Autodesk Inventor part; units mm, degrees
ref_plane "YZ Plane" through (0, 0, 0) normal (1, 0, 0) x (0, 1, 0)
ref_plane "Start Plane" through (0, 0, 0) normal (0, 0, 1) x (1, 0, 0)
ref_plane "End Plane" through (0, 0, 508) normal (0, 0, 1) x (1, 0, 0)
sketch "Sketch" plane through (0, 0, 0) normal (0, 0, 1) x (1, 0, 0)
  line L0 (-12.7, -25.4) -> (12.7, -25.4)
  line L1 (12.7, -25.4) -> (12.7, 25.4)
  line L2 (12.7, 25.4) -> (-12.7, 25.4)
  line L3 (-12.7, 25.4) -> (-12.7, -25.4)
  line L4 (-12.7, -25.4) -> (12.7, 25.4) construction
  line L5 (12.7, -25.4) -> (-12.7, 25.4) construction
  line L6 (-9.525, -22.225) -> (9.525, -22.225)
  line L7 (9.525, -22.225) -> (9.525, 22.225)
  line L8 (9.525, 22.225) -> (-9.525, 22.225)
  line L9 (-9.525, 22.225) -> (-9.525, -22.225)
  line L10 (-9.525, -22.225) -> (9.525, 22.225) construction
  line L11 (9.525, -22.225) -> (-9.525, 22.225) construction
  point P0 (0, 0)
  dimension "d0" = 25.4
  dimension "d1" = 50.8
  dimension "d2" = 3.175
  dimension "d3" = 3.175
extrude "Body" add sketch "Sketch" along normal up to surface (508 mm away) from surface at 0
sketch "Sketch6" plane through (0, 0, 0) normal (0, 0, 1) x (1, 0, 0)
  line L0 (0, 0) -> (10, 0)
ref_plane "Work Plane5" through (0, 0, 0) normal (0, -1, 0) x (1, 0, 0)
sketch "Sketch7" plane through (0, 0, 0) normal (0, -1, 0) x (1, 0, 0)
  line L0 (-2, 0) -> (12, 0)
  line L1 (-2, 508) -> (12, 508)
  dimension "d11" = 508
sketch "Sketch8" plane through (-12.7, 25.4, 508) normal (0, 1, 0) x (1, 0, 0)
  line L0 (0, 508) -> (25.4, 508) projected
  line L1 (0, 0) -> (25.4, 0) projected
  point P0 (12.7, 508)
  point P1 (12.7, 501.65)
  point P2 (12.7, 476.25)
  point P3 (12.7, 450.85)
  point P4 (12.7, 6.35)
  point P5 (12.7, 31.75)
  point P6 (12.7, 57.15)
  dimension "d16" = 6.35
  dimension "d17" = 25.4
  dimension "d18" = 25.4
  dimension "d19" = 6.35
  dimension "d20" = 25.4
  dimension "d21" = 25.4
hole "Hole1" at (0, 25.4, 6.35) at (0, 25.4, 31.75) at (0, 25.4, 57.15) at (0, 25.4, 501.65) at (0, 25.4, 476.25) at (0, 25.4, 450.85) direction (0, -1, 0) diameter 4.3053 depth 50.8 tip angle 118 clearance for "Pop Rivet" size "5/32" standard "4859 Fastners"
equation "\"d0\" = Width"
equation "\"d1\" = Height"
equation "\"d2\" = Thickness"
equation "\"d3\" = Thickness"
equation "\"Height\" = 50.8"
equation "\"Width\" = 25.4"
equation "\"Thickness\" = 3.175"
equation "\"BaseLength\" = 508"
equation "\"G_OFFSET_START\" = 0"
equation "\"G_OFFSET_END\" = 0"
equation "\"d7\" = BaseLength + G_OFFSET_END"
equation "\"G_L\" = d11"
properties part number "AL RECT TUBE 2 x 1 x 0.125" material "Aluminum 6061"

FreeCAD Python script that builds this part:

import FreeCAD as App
import Part
import Sketcher

V = App.Vector
Q = App.Units.Quantity


def add_polygon(sketch, points):
    """Adds a closed chain of lines whose ends are joined by coincident constraints."""
    first, n = sketch.GeometryCount, len(points)
    for a, b in zip(points, points[1:] + points[:1]):
        sketch.addGeometry(Part.LineSegment(App.Vector(*a, 0), App.Vector(*b, 0)), False)
    for i in range(n):
        sketch.addConstraint(Sketcher.Constraint("Coincident", first + i, 2, first + (i + 1) % n, 1))

doc = App.newDocument("Part")
body = doc.addObject("PartDesign::Body", "Body")

# Sketch on XY plane
sketch1 = body.newObject("Sketcher::SketchObject", "Sketch")
sketch1.AttachmentSupport = (doc.getObject("XY_Plane"), [""])
sketch1.MapMode = "FlatFace"
add_polygon(sketch1, [(-12.7, 25.4), (-12.7, -25.4), (12.7, -25.4), (12.7, 25.4)])  # lines 0-3
add_polygon(sketch1, [(9.525, -22.225), (-9.525, -22.225), (-9.525, 22.225), (9.525, 22.225)])  # lines 4-7
sketch1.addConstraint(Sketcher.Constraint("Vertical", 0))
sketch1.addConstraint(Sketcher.Constraint("Horizontal", 1))
sketch1.addConstraint(Sketcher.Constraint("Vertical", 2))
sketch1.addConstraint(Sketcher.Constraint("Horizontal", 3))
sketch1.addConstraint(Sketcher.Constraint("Horizontal", 4))
sketch1.addConstraint(Sketcher.Constraint("Vertical", 5))
sketch1.addConstraint(Sketcher.Constraint("Horizontal", 6))
sketch1.addConstraint(Sketcher.Constraint("Vertical", 7))
sketch1.addConstraint(Sketcher.Constraint("Symmetric", 0, 2, 2, 2, -1, 1))
sketch1.addConstraint(Sketcher.Constraint("Symmetric", 4, 2, 6, 2, -1, 1))
sketch1.addConstraint(Sketcher.Constraint("DistanceX", 1, 1, 1, 2, Q("1 in")))
sketch1.addConstraint(Sketcher.Constraint("DistanceY", 0, 2, 0, 1, Q("2 in")))
sketch1.addConstraint(Sketcher.Constraint("DistanceX", 0, 2, 4, 2, Q("0.125 in")))
sketch1.addConstraint(Sketcher.Constraint("DistanceY", 0, 2, 4, 2, Q("0.125 in")))
pad1 = body.newObject("PartDesign::Pad", "Pad")
pad1.Profile = sketch1
pad1.Length = Q("20 in")

# Sketch on XZ plane
sketch2 = body.newObject("Sketcher::SketchObject", "Sketch001")
sketch2.AttachmentSupport = (doc.getObject("XZ_Plane"), [""])
sketch2.MapMode = "FlatFace"
sketch2.AttachmentOffset = App.Placement(V(0, 0, -1 * 25.4), App.Rotation())
sketch2.addGeometry(Part.Circle(V(0, 6.35, 0), V(0, 0, 1), 2.15265), False)
sketch2.addGeometry(Part.Circle(V(0, 31.75, 0), V(0, 0, 1), 2.15265), False)
sketch2.addGeometry(Part.Circle(V(0, 57.15, 0), V(0, 0, 1), 2.15265), False)
sketch2.addGeometry(Part.Circle(V(0, 501.65, 0), V(0, 0, 1), 2.15265), False)
sketch2.addGeometry(Part.Circle(V(0, 476.25, 0), V(0, 0, 1), 2.15265), False)
sketch2.addGeometry(Part.Circle(V(0, 450.85, 0), V(0, 0, 1), 2.15265), False)
sketch2.addConstraint(Sketcher.Constraint("Equal", 0, 1))
sketch2.addConstraint(Sketcher.Constraint("Equal", 1, 2))
sketch2.addConstraint(Sketcher.Constraint("Equal", 2, 3))
sketch2.addConstraint(Sketcher.Constraint("Equal", 3, 4))
sketch2.addConstraint(Sketcher.Constraint("Equal", 4, 5))
sketch2.addConstraint(Sketcher.Constraint("PointOnObject", 0, 3, -2))
sketch2.addConstraint(Sketcher.Constraint("PointOnObject", 1, 3, -2))
sketch2.addConstraint(Sketcher.Constraint("PointOnObject", 2, 3, -2))
sketch2.addConstraint(Sketcher.Constraint("PointOnObject", 3, 3, -2))
sketch2.addConstraint(Sketcher.Constraint("PointOnObject", 4, 3, -2))
sketch2.addConstraint(Sketcher.Constraint("PointOnObject", 5, 3, -2))
sketch2.addConstraint(Sketcher.Constraint("DistanceY", 0, 3, 1, 3, Q("1 in")))
sketch2.addConstraint(Sketcher.Constraint("DistanceY", 1, 3, 2, 3, Q("1 in")))
sketch2.addConstraint(Sketcher.Constraint("DistanceY", 4, 3, 3, 3, Q("1 in")))
sketch2.addConstraint(Sketcher.Constraint("DistanceY", 5, 3, 4, 3, Q("1 in")))
sketch2.addConstraint(Sketcher.Constraint("Diameter", 0, Q("0.1695 in")))
sketch2.addConstraint(Sketcher.Constraint("DistanceY", 2, 3, 3, 3, Q("17.5 in")))
sketch2.addConstraint(Sketcher.Constraint("DistanceY", -1, 1, 0, 3, Q("0.25 in")))
doc.recompute()
hole = body.newObject("PartDesign::Hole", "Hole")
hole.Profile = sketch2
hole.ThreadType = "None"
hole.Diameter = Q("0.1695 in")
hole.DepthType = "Dimension"
hole.Depth = Q("2 in")
hole.DrillPoint = "Angled"
hole.DrillPointAngle = 118
hole.Reversed = True

doc.recompute()
